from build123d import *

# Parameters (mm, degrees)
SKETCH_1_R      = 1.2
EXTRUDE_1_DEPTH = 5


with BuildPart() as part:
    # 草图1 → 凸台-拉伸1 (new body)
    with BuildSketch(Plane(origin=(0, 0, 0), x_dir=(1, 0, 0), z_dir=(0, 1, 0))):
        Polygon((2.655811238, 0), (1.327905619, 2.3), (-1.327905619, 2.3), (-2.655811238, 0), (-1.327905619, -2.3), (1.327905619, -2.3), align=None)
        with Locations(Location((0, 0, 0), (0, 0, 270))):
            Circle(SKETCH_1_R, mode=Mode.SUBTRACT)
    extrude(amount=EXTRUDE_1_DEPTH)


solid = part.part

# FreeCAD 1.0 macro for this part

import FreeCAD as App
import Part
import Sketcher

V = App.Vector
Q = App.Units.Quantity

doc = App.newDocument("Part")
body = doc.addObject("PartDesign::Body", "Body")

sketch1 = body.newObject("Sketcher::SketchObject", "Sketch")
sketch1.AttachmentSupport = (doc.getObject("XZ_Plane"), [""])
sketch1.MapMode = "FlatFace"
sketch1.addGeometry([
    Part.LineSegment(V(2.655811, 0, 0), V(1.327906, -2.3, 0)),
    Part.LineSegment(V(1.327906, -2.3, 0), V(-1.327906, -2.3, 0)),
    Part.LineSegment(V(-1.327906, -2.3, 0), V(-2.655811, 0, 0)),
    Part.LineSegment(V(-2.655811, 0, 0), V(-1.327906, 2.3, 0)),
    Part.LineSegment(V(-1.327906, 2.3, 0), V(1.327906, 2.3, 0)),
    Part.LineSegment(V(1.327906, 2.3, 0), V(2.655811, 0, 0)),
    Part.Circle(V(0, 0, 0), V(0, 0, 1), 1.2),
], False)
sketch1.addConstraint([
    Sketcher.Constraint("Coincident", 0, 2, 1, 1),
    Sketcher.Constraint("Coincident", 1, 2, 2, 1),
    Sketcher.Constraint("Coincident", 2, 2, 3, 1),
    Sketcher.Constraint("Coincident", 3, 2, 4, 1),
    Sketcher.Constraint("Coincident", 4, 2, 5, 1),
    Sketcher.Constraint("Coincident", 5, 2, 0, 1),
    Sketcher.Constraint("Horizontal", 1),
    Sketcher.Constraint("Horizontal", 4),
    Sketcher.Constraint("Coincident", 6, 3, -1, 1),
    Sketcher.Constraint("Symmetric", 0, 2, 3, 2, -1, 1),
    Sketcher.Constraint("Symmetric", 2, 2, 5, 2, -1, 1),
    Sketcher.Constraint("PointOnObject", 2, 2, -1),
    Sketcher.Constraint("Parallel", 2, 5),
    Sketcher.Constraint("Vertical", 1, 2, 3, 2),
    Sketcher.Constraint("Diameter", 6, Q("2.4 mm")),
    Sketcher.Constraint("Angle", 0, Q("-120 deg")),
    Sketcher.Constraint("DistanceY", 0, 2, -1, 1, Q("2.3 mm")),
    Sketcher.Constraint("DistanceX", 1, 2, 1, 1, Q("2.655811 mm")),
])
pad1 = body.newObject("PartDesign::Pad", "Pad")
pad1.Profile = sketch1
pad1.Length = 5
pad1.Reversed = True

doc.recompute()
